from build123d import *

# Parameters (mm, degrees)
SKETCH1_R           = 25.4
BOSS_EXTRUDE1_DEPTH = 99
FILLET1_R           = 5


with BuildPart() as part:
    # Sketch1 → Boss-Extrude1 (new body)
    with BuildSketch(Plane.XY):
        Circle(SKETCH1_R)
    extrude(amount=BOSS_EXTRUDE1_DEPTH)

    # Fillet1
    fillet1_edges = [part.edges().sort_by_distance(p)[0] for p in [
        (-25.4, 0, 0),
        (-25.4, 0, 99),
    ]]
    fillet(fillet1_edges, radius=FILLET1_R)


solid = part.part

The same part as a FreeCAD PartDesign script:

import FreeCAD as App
import Part
import Sketcher

V = App.Vector


def edges_at(feature, points):
    """Names of the edges that pass closest to the given points."""
    edges = feature.Shape.Edges
    near = lambda p: min(range(len(edges)), key=lambda i: edges[i].distToShape(Part.Vertex(*p))[0])
    return sorted({f"Edge{near(p) + 1}" for p in points})

doc = App.newDocument("Part")
body = doc.addObject("PartDesign::Body", "Body")

# Sketch on XY plane
sketch1 = body.newObject("Sketcher::SketchObject", "Sketch")
sketch1.AttachmentSupport = (doc.getObject("XY_Plane"), [""])
sketch1.MapMode = "FlatFace"
sketch1.addGeometry(Part.Circle(V(0, 0, 0), V(0, 0, 1), 25), False)
sketch1.addConstraint([
    Sketcher.Constraint("Coincident", 0, 3, -1, 1),
    Sketcher.Constraint("Diameter", 0, 50.8),
])
pad1 = body.newObject("PartDesign::Pad", "Pad")
pad1.Profile = sketch1
pad1.Length = 99
doc.recompute()

fillet = body.newObject("PartDesign::Fillet", "Fillet")
fillet.Base = (pad1, edges_at(pad1, [(-25.4, 0, 0), (-25.4, 0, 99)]))
fillet.Radius = 5

doc.recompute()
